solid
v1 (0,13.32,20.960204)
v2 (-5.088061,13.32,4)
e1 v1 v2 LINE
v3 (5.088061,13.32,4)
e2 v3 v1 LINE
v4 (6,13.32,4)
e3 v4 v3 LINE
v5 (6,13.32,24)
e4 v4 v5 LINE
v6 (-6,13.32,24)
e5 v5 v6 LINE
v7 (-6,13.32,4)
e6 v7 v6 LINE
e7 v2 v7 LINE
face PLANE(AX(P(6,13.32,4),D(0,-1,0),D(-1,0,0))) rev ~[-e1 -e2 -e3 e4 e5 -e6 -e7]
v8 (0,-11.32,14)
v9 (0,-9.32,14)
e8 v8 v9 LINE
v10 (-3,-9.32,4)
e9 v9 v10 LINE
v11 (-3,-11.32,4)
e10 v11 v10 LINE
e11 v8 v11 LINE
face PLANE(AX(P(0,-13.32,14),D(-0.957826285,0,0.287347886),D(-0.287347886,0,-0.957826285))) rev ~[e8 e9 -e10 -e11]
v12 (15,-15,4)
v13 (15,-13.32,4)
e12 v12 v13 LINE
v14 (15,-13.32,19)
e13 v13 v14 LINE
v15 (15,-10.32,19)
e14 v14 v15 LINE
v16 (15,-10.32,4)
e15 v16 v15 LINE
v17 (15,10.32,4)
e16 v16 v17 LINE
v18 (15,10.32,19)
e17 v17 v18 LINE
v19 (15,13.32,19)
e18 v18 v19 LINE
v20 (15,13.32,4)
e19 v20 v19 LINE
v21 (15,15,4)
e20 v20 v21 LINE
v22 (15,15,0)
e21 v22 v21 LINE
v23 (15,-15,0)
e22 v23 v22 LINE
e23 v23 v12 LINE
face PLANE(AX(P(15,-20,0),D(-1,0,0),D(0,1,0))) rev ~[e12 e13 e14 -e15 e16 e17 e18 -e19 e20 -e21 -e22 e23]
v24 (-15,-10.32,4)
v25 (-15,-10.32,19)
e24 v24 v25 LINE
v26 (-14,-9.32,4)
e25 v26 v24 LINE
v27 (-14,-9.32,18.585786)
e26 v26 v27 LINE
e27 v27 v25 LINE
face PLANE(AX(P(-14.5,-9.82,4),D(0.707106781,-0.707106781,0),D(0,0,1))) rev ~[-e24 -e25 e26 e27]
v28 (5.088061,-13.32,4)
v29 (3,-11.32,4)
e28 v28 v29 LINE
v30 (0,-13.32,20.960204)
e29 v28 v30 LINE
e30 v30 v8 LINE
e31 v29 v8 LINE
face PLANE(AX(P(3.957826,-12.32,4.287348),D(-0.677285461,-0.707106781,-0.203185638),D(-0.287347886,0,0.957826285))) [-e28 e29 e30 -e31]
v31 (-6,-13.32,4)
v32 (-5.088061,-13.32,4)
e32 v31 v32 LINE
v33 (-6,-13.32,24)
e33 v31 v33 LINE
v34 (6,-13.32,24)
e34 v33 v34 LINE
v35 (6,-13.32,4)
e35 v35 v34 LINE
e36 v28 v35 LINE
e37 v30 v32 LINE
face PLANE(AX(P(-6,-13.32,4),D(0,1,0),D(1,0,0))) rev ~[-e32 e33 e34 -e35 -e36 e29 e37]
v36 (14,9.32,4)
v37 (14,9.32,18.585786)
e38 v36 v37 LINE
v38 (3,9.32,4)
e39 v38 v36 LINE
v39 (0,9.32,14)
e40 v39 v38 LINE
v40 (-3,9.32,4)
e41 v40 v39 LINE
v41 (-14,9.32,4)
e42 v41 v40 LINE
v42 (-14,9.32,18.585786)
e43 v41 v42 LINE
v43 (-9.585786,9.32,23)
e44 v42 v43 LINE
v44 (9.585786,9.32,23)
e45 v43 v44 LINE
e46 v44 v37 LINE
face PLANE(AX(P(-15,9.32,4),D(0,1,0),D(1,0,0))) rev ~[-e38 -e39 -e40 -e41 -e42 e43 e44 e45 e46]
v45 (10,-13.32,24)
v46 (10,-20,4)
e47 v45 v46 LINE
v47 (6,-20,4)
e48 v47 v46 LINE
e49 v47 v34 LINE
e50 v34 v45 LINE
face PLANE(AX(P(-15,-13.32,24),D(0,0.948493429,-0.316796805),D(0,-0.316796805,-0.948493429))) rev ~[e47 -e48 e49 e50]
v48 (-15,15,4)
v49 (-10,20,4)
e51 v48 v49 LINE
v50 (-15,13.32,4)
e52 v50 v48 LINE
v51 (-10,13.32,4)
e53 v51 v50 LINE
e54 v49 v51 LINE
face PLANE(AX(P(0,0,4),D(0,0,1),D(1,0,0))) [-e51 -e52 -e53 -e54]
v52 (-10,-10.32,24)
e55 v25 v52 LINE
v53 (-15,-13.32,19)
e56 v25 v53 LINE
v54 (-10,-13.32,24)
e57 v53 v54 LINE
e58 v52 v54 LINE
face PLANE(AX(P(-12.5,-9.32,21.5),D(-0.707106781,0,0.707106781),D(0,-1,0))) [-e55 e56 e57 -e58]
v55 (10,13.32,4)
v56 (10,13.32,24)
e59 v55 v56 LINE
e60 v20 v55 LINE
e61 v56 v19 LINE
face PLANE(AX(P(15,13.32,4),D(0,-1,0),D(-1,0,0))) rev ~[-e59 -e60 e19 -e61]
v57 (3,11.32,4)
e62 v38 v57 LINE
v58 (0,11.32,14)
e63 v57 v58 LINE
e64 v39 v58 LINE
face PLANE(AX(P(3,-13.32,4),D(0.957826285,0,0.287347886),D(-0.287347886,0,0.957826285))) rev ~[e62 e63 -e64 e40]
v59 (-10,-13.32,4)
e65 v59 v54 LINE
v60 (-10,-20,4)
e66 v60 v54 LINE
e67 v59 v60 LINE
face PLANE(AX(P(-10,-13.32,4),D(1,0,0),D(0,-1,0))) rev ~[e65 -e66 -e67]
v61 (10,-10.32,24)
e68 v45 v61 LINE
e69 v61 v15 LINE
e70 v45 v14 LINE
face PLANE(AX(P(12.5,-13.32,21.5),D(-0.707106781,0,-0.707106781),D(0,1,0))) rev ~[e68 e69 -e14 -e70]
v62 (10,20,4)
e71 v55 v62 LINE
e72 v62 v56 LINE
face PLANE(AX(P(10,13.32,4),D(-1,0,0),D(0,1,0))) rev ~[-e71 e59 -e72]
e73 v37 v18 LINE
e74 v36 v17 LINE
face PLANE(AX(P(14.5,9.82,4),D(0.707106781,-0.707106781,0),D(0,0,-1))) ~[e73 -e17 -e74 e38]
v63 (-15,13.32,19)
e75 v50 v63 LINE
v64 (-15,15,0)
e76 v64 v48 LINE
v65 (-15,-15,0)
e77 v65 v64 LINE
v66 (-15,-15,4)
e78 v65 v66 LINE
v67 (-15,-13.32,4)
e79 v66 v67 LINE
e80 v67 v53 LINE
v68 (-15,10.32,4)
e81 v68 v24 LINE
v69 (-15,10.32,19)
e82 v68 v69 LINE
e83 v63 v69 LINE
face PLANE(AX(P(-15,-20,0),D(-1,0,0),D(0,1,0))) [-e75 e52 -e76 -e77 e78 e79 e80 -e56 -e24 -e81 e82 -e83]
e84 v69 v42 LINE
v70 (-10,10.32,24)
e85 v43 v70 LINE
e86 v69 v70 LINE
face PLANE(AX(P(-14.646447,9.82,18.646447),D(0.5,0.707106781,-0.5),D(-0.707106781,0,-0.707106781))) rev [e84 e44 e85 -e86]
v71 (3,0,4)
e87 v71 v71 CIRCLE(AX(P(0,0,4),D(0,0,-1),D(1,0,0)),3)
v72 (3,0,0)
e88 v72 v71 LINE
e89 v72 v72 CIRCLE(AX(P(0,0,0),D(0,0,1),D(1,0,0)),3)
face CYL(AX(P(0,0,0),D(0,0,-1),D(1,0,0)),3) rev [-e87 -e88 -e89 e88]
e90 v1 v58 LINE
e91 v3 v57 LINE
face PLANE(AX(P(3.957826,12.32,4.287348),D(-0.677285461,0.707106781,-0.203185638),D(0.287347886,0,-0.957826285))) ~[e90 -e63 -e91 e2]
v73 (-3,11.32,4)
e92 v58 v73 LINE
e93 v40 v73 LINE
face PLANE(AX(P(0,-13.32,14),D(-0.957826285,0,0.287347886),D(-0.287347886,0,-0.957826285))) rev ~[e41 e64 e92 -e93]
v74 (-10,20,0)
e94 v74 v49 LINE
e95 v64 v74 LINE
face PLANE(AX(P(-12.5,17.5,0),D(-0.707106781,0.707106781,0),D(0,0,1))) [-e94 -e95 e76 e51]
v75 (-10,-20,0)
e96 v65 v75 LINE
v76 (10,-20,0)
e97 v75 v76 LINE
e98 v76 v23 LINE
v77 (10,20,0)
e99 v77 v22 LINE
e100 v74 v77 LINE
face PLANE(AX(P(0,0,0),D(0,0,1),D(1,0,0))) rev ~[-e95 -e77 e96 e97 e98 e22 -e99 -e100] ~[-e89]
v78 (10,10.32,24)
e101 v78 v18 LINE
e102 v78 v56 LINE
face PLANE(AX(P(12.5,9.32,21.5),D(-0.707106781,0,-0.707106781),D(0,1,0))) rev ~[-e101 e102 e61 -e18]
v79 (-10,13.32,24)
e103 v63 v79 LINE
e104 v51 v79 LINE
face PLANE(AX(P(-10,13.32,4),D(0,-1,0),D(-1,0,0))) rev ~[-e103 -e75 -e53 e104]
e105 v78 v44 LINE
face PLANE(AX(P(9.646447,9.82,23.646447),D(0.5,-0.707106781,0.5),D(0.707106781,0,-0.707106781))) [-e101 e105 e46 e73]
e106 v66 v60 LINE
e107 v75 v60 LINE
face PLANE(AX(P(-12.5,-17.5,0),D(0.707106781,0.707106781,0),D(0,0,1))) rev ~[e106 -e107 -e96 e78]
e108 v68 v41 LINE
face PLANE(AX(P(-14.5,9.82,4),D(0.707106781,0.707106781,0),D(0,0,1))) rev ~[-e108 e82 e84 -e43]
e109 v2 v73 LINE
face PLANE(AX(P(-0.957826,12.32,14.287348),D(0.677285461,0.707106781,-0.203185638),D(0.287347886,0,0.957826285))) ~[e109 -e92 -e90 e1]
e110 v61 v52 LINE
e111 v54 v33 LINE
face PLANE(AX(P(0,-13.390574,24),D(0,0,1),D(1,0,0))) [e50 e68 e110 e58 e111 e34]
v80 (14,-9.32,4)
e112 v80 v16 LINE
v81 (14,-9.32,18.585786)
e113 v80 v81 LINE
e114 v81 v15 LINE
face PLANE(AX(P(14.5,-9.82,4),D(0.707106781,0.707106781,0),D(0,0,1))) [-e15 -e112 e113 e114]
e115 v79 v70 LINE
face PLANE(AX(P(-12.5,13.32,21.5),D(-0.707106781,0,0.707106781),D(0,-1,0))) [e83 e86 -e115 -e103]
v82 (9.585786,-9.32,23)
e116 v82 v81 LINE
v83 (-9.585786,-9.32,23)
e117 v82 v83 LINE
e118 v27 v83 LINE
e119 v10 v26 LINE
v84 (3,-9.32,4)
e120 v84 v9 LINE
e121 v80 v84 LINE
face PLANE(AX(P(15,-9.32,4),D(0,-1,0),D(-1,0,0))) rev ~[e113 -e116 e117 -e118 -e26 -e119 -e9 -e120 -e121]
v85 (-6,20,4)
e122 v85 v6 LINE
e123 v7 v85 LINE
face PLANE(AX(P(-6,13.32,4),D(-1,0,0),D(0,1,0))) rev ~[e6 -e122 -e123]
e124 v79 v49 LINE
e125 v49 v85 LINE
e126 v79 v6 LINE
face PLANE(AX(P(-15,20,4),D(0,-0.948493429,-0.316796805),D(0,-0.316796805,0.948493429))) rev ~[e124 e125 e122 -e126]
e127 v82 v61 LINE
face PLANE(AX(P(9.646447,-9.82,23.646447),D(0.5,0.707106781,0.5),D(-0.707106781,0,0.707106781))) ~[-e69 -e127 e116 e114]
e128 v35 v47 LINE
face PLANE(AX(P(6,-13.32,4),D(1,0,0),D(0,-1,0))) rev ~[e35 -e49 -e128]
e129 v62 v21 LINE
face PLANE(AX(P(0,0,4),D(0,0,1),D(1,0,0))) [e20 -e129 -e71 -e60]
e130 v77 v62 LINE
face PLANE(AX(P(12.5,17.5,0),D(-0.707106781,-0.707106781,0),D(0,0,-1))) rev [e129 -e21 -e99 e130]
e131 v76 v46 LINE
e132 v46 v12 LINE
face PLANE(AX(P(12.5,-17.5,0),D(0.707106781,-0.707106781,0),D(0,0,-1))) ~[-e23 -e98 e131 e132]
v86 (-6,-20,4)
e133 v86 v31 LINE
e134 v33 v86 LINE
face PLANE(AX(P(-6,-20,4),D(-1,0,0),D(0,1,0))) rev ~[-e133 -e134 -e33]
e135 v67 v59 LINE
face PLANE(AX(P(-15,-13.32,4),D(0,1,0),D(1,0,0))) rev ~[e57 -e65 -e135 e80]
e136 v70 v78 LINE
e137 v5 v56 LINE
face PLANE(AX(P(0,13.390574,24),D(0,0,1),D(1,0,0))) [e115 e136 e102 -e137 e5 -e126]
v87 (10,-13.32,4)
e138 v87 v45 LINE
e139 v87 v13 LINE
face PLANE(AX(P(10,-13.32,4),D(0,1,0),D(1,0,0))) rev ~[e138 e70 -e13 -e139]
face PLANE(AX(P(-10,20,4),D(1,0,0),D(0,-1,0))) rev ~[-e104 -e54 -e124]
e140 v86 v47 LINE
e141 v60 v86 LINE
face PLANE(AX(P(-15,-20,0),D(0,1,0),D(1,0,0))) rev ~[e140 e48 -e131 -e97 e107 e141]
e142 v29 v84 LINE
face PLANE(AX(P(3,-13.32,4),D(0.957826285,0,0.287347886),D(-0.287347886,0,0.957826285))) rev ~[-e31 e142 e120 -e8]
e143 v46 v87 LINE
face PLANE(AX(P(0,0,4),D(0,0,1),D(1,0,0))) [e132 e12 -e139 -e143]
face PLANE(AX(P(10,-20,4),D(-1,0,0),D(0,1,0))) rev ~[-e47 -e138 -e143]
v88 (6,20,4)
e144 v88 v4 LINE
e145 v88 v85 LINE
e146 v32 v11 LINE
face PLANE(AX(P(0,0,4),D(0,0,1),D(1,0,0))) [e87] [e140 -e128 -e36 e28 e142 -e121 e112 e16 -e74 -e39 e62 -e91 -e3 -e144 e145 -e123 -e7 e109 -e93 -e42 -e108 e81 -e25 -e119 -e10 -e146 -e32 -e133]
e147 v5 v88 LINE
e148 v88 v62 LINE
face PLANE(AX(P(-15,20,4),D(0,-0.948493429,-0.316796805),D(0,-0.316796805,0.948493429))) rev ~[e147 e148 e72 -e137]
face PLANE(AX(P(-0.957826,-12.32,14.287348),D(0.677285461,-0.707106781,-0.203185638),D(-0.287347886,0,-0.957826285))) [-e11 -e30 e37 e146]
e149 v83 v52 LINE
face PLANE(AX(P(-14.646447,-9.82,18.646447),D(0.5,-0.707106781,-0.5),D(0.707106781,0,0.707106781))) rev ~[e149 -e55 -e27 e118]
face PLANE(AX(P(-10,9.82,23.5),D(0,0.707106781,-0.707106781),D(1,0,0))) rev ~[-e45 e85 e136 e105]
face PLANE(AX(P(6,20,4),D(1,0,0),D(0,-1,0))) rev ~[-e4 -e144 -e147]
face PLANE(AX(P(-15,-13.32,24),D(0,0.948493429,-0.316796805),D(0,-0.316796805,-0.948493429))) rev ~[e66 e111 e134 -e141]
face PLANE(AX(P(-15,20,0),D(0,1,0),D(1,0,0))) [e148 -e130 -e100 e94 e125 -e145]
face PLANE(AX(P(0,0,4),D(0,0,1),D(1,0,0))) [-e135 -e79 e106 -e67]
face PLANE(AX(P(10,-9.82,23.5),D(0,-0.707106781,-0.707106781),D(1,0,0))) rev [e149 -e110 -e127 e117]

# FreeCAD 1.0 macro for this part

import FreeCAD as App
import Part
import Sketcher
Q = App.Units.Quantity


def edges_at(feature, points):
    """Names of the edges that pass closest to the given points."""
    edges = feature.Shape.Edges
    near = lambda p: min(range(len(edges)), key=lambda i: edges[i].distToShape(Part.Vertex(*p))[0])
    return sorted({f"Edge{near(p) + 1}" for p in points})


def add_polygon(sketch, points):
    """Adds a closed chain of lines whose ends are joined by coincident constraints."""
    first, n = sketch.GeometryCount, len(points)
    for a, b in zip(points, points[1:] + points[:1]):
        sketch.addGeometry(Part.LineSegment(App.Vector(*a, 0), App.Vector(*b, 0)), False)
    for i in range(n):
        sketch.addConstraint(Sketcher.Constraint("Coincident", first + i, 2, first + (i + 1) % n, 1))

doc = App.newDocument("Part")
body = doc.addObject("PartDesign::Body", "Body")

# Sketch on XY plane
sketch1 = doc.addObject("Sketcher::SketchObject", "Sketch")
body.addObject(sketch1)
sketch1.AttachmentSupport = (doc.XY_Plane, [""])
sketch1.MapMode = "FlatFace"
add_polygon(sketch1, [(-15, 20), (-15, -20), (15, -20), (15, 20)])  # lines 0-3
sketch1.addGeometry(Part.Circle(App.Vector(0, 0, 0), App.Vector(0, 0, 1), 3), False)  # 4
sketch1.addConstraint([
    Sketcher.Constraint("Vertical", 0),
    Sketcher.Constraint("Horizontal", 1),
    Sketcher.Constraint("Vertical", 2),
    Sketcher.Constraint("Horizontal", 3),
    Sketcher.Constraint("Coincident", 4, 3, -1, 1),
    Sketcher.Constraint("Symmetric", 0, 2, 2, 2, -1, 1),
    Sketcher.Constraint("Diameter", 4, Q("6 mm")),
    Sketcher.Constraint("DistanceX", 1, 1, 1, 2, Q("30 mm")),
    Sketcher.Constraint("DistanceY", 0, 2, 0, 1, Q("40 mm")),
])
pad1 = doc.addObject("PartDesign::Pad", "Pad")
body.addObject(pad1)
pad1.Profile = sketch1
pad1.Length = 4

# Sketch on XY plane
sketch2 = doc.addObject("Sketcher::SketchObject", "Sketch001")
body.addObject(sketch2)
sketch2.AttachmentSupport = (doc.XY_Plane, [""])
sketch2.MapMode = "FlatFace"
sketch2.AttachmentOffset = App.Placement(App.Vector(0, 0, 4), App.Rotation())
add_polygon(sketch2, [(-15, 9.3), (15, 9.3), (15, 13.3), (10, 13.3), (10, 20), (6, 20), (6, 13.3), (-6, 13.3), (-6, 20), (-10, 20), (-10, 13.3), (-15, 13.3)])  # lines 0-11
add_polygon(sketch2, [(15, -13.3), (15, -9.3), (-15, -9.3), (-15, -13.3), (-10, -13.3), (-10, -20), (-6, -20), (-6, -13.3), (6, -13.3), (6, -20), (10, -20), (10, -13.3)])  # lines 12-23
sketch2.addConstraint([
    Sketcher.Constraint("Horizontal", 0),
    Sketcher.Constraint("Vertical", 1),
    Sketcher.Constraint("Horizontal", 2),
    Sketcher.Constraint("Vertical", 3),
    Sketcher.Constraint("Horizontal", 4),
    Sketcher.Constraint("Vertical", 5),
    Sketcher.Constraint("Horizontal", 6),
    Sketcher.Constraint("Vertical", 7),
    Sketcher.Constraint("Horizontal", 8),
    Sketcher.Constraint("Vertical", 9),
    Sketcher.Constraint("Horizontal", 10),
    Sketcher.Constraint("Vertical", 11),
    Sketcher.Constraint("Vertical", 12),
    Sketcher.Constraint("Horizontal", 13),
    Sketcher.Constraint("Vertical", 14),
    Sketcher.Constraint("Horizontal", 15),
    Sketcher.Constraint("Vertical", 16),
    Sketcher.Constraint("Horizontal", 17),
    Sketcher.Constraint("Vertical", 18),
    Sketcher.Constraint("Horizontal", 19),
    Sketcher.Constraint("Vertical", 20),
    Sketcher.Constraint("Horizontal", 21),
    Sketcher.Constraint("Vertical", 22),
    Sketcher.Constraint("Horizontal", 23),
    Sketcher.Constraint("Symmetric", 11, 2, 12, 2, -1, 1),
    Sketcher.Constraint("Symmetric", 1, 2, 14, 2, -1, 1),
    Sketcher.Constraint("Symmetric", 3, 2, 16, 2, -1, 1),
    Sketcher.Constraint("Symmetric", 5, 2, 18, 2, -1, 1),
    Sketcher.Constraint("Symmetric", 7, 2, 20, 2, -1, 1),
    Sketcher.Constraint("Symmetric", 9, 2, 22, 2, -1, 1),
    Sketcher.Constraint("Symmetric", 4, 2, 7, 2, -2),
    Sketcher.Constraint("Symmetric", 2, 2, 9, 2, -2),
    Sketcher.Constraint("Horizontal", 2, 2, 5, 2),
    Sketcher.Constraint("Vertical", 1, 2, 12, 2),
    Sketcher.Constraint("Equal", 21, 1),
    Sketcher.Constraint("DistanceX", 0, 1, 0, 2, Q("30 mm")),
    Sketcher.Constraint("DistanceX", 2, 2, 2, 1, Q("5 mm")),
    Sketcher.Constraint("DistanceX", 4, 2, 4, 1, Q("4 mm")),
    Sketcher.Constraint("DistanceY", -1, 1, 3, 2, Q("20 mm")),
    Sketcher.Constraint("DistanceY", 3, 1, 3, 2, Q("6.68 mm")),
])
pad2 = doc.addObject("PartDesign::Pad", "Pad001")
body.addObject(pad2)
pad2.Profile = sketch2
pad2.Length = 20

# Sketch on YZ plane
sketch3 = doc.addObject("Sketcher::SketchObject", "Sketch002")
body.addObject(sketch3)
sketch3.AttachmentSupport = (doc.YZ_Plane, [""])
sketch3.MapMode = "FlatFace"
sketch3.AttachmentOffset = App.Placement(App.Vector(0, 0, -15), App.Rotation())
add_polygon(sketch3, [(20, 24), (20, 4), (13, 24)])  # lines 0-2
add_polygon(sketch3, [(-20, 24), (-13, 24), (-20, 4)])  # lines 3-5
sketch3.addConstraint([
    Sketcher.Constraint("Vertical", 0),
    Sketcher.Constraint("Horizontal", 2),
    Sketcher.Constraint("Horizontal", 3),
    Sketcher.Constraint("Vertical", 5),
    Sketcher.Constraint("Symmetric", 1, 2, 3, 2, -2),
    Sketcher.Constraint("Symmetric", 0, 2, 4, 2, -2),
    Sketcher.Constraint("DistanceY", 0, 2, 0, 1, Q("20 mm")),
    Sketcher.Constraint("DistanceX", -1, 1, 0, 2, Q("20 mm")),
    Sketcher.Constraint("DistanceY", -1, 1, 0, 2, Q("4 mm")),
    Sketcher.Constraint("DistanceX", 2, 1, 2, 2, Q("6.68 mm")),
])
pocket1 = doc.addObject("PartDesign::Pocket", "Pocket")
body.addObject(pocket1)
pocket1.Profile = sketch3
pocket1.Type = "ThroughAll"
pocket1.Reversed = True
doc.recompute()

chamfer = doc.addObject("PartDesign::Chamfer", "Chamfer")
body.addObject(chamfer)
chamfer.Base = (pocket1, edges_at(pocket1, [
    (-15, 20, 2),
    (-15, -20, 2),
    (15, 20, 2),
    (15, -20, 2),
    (-15, 11.32, 24),
    (-15, -11.32, 24),
    (15, -11.32, 24),
    (15, 11.32, 24),
]))
chamfer.Size = 5

# Sketch on XZ plane
sketch4 = doc.addObject("Sketcher::SketchObject", "Sketch003")
body.addObject(sketch4)
sketch4.AttachmentSupport = (doc.XZ_Plane, [""])
sketch4.MapMode = "FlatFace"
sketch4.AttachmentOffset = App.Placement(App.Vector(0, 0, 13.32), App.Rotation())
add_polygon(sketch4, [(0, 14), (-3, 4), (3, 4)])  # lines 0-2
sketch4.addConstraint([
    Sketcher.Constraint("Horizontal", 1),
    Sketcher.Constraint("PointOnObject", 2, 2, -2),
    Sketcher.Constraint("Equal", 0, 2),
    Sketcher.Constraint("DistanceX", 1, 1, 1, 2, Q("6 mm")),
    Sketcher.Constraint("DistanceY", -1, 1, 0, 2, Q("4 mm")),
    Sketcher.Constraint("DistanceY", -1, 1, 2, 2, Q("14 mm")),
])
pocket2 = doc.addObject("PartDesign::Pocket", "Pocket001")
body.addObject(pocket2)
pocket2.Profile = sketch4
pocket2.Type = "ThroughAll"
doc.recompute()

chamfer2 = doc.addObject("PartDesign::Chamfer", "Chamfer001")
body.addObject(chamfer2)
chamfer2.Base = (pocket2, edges_at(pocket2, [
    (-1.5, -13.32, 9),
    (1.5, -13.32, 9),
    (1.5, 13.32, 9),
    (-1.5, 13.32, 9),
]))
chamfer2.ChamferType = "Two distances"
chamfer2.Size = 2
chamfer2.Size2 = 2
doc.recompute()

chamfer3 = doc.addObject("PartDesign::Chamfer", "Chamfer002")
body.addObject(chamfer3)
chamfer3.Base = (chamfer2, edges_at(chamfer2, [
    (15, -9.32, 11.5),
    (12.5, -9.32, 21.5),
    (0, -9.32, 24),
    (-15, -9.32, 11.5),
    (-12.5, -9.32, 21.5),
    (-15, 9.32, 11.5),
    (-12.5, 9.32, 21.5),
    (0, 9.32, 24),
    (12.5, 9.32, 21.5),
    (15, 9.32, 11.5),
]))
chamfer3.Size = 1

doc.recompute()
